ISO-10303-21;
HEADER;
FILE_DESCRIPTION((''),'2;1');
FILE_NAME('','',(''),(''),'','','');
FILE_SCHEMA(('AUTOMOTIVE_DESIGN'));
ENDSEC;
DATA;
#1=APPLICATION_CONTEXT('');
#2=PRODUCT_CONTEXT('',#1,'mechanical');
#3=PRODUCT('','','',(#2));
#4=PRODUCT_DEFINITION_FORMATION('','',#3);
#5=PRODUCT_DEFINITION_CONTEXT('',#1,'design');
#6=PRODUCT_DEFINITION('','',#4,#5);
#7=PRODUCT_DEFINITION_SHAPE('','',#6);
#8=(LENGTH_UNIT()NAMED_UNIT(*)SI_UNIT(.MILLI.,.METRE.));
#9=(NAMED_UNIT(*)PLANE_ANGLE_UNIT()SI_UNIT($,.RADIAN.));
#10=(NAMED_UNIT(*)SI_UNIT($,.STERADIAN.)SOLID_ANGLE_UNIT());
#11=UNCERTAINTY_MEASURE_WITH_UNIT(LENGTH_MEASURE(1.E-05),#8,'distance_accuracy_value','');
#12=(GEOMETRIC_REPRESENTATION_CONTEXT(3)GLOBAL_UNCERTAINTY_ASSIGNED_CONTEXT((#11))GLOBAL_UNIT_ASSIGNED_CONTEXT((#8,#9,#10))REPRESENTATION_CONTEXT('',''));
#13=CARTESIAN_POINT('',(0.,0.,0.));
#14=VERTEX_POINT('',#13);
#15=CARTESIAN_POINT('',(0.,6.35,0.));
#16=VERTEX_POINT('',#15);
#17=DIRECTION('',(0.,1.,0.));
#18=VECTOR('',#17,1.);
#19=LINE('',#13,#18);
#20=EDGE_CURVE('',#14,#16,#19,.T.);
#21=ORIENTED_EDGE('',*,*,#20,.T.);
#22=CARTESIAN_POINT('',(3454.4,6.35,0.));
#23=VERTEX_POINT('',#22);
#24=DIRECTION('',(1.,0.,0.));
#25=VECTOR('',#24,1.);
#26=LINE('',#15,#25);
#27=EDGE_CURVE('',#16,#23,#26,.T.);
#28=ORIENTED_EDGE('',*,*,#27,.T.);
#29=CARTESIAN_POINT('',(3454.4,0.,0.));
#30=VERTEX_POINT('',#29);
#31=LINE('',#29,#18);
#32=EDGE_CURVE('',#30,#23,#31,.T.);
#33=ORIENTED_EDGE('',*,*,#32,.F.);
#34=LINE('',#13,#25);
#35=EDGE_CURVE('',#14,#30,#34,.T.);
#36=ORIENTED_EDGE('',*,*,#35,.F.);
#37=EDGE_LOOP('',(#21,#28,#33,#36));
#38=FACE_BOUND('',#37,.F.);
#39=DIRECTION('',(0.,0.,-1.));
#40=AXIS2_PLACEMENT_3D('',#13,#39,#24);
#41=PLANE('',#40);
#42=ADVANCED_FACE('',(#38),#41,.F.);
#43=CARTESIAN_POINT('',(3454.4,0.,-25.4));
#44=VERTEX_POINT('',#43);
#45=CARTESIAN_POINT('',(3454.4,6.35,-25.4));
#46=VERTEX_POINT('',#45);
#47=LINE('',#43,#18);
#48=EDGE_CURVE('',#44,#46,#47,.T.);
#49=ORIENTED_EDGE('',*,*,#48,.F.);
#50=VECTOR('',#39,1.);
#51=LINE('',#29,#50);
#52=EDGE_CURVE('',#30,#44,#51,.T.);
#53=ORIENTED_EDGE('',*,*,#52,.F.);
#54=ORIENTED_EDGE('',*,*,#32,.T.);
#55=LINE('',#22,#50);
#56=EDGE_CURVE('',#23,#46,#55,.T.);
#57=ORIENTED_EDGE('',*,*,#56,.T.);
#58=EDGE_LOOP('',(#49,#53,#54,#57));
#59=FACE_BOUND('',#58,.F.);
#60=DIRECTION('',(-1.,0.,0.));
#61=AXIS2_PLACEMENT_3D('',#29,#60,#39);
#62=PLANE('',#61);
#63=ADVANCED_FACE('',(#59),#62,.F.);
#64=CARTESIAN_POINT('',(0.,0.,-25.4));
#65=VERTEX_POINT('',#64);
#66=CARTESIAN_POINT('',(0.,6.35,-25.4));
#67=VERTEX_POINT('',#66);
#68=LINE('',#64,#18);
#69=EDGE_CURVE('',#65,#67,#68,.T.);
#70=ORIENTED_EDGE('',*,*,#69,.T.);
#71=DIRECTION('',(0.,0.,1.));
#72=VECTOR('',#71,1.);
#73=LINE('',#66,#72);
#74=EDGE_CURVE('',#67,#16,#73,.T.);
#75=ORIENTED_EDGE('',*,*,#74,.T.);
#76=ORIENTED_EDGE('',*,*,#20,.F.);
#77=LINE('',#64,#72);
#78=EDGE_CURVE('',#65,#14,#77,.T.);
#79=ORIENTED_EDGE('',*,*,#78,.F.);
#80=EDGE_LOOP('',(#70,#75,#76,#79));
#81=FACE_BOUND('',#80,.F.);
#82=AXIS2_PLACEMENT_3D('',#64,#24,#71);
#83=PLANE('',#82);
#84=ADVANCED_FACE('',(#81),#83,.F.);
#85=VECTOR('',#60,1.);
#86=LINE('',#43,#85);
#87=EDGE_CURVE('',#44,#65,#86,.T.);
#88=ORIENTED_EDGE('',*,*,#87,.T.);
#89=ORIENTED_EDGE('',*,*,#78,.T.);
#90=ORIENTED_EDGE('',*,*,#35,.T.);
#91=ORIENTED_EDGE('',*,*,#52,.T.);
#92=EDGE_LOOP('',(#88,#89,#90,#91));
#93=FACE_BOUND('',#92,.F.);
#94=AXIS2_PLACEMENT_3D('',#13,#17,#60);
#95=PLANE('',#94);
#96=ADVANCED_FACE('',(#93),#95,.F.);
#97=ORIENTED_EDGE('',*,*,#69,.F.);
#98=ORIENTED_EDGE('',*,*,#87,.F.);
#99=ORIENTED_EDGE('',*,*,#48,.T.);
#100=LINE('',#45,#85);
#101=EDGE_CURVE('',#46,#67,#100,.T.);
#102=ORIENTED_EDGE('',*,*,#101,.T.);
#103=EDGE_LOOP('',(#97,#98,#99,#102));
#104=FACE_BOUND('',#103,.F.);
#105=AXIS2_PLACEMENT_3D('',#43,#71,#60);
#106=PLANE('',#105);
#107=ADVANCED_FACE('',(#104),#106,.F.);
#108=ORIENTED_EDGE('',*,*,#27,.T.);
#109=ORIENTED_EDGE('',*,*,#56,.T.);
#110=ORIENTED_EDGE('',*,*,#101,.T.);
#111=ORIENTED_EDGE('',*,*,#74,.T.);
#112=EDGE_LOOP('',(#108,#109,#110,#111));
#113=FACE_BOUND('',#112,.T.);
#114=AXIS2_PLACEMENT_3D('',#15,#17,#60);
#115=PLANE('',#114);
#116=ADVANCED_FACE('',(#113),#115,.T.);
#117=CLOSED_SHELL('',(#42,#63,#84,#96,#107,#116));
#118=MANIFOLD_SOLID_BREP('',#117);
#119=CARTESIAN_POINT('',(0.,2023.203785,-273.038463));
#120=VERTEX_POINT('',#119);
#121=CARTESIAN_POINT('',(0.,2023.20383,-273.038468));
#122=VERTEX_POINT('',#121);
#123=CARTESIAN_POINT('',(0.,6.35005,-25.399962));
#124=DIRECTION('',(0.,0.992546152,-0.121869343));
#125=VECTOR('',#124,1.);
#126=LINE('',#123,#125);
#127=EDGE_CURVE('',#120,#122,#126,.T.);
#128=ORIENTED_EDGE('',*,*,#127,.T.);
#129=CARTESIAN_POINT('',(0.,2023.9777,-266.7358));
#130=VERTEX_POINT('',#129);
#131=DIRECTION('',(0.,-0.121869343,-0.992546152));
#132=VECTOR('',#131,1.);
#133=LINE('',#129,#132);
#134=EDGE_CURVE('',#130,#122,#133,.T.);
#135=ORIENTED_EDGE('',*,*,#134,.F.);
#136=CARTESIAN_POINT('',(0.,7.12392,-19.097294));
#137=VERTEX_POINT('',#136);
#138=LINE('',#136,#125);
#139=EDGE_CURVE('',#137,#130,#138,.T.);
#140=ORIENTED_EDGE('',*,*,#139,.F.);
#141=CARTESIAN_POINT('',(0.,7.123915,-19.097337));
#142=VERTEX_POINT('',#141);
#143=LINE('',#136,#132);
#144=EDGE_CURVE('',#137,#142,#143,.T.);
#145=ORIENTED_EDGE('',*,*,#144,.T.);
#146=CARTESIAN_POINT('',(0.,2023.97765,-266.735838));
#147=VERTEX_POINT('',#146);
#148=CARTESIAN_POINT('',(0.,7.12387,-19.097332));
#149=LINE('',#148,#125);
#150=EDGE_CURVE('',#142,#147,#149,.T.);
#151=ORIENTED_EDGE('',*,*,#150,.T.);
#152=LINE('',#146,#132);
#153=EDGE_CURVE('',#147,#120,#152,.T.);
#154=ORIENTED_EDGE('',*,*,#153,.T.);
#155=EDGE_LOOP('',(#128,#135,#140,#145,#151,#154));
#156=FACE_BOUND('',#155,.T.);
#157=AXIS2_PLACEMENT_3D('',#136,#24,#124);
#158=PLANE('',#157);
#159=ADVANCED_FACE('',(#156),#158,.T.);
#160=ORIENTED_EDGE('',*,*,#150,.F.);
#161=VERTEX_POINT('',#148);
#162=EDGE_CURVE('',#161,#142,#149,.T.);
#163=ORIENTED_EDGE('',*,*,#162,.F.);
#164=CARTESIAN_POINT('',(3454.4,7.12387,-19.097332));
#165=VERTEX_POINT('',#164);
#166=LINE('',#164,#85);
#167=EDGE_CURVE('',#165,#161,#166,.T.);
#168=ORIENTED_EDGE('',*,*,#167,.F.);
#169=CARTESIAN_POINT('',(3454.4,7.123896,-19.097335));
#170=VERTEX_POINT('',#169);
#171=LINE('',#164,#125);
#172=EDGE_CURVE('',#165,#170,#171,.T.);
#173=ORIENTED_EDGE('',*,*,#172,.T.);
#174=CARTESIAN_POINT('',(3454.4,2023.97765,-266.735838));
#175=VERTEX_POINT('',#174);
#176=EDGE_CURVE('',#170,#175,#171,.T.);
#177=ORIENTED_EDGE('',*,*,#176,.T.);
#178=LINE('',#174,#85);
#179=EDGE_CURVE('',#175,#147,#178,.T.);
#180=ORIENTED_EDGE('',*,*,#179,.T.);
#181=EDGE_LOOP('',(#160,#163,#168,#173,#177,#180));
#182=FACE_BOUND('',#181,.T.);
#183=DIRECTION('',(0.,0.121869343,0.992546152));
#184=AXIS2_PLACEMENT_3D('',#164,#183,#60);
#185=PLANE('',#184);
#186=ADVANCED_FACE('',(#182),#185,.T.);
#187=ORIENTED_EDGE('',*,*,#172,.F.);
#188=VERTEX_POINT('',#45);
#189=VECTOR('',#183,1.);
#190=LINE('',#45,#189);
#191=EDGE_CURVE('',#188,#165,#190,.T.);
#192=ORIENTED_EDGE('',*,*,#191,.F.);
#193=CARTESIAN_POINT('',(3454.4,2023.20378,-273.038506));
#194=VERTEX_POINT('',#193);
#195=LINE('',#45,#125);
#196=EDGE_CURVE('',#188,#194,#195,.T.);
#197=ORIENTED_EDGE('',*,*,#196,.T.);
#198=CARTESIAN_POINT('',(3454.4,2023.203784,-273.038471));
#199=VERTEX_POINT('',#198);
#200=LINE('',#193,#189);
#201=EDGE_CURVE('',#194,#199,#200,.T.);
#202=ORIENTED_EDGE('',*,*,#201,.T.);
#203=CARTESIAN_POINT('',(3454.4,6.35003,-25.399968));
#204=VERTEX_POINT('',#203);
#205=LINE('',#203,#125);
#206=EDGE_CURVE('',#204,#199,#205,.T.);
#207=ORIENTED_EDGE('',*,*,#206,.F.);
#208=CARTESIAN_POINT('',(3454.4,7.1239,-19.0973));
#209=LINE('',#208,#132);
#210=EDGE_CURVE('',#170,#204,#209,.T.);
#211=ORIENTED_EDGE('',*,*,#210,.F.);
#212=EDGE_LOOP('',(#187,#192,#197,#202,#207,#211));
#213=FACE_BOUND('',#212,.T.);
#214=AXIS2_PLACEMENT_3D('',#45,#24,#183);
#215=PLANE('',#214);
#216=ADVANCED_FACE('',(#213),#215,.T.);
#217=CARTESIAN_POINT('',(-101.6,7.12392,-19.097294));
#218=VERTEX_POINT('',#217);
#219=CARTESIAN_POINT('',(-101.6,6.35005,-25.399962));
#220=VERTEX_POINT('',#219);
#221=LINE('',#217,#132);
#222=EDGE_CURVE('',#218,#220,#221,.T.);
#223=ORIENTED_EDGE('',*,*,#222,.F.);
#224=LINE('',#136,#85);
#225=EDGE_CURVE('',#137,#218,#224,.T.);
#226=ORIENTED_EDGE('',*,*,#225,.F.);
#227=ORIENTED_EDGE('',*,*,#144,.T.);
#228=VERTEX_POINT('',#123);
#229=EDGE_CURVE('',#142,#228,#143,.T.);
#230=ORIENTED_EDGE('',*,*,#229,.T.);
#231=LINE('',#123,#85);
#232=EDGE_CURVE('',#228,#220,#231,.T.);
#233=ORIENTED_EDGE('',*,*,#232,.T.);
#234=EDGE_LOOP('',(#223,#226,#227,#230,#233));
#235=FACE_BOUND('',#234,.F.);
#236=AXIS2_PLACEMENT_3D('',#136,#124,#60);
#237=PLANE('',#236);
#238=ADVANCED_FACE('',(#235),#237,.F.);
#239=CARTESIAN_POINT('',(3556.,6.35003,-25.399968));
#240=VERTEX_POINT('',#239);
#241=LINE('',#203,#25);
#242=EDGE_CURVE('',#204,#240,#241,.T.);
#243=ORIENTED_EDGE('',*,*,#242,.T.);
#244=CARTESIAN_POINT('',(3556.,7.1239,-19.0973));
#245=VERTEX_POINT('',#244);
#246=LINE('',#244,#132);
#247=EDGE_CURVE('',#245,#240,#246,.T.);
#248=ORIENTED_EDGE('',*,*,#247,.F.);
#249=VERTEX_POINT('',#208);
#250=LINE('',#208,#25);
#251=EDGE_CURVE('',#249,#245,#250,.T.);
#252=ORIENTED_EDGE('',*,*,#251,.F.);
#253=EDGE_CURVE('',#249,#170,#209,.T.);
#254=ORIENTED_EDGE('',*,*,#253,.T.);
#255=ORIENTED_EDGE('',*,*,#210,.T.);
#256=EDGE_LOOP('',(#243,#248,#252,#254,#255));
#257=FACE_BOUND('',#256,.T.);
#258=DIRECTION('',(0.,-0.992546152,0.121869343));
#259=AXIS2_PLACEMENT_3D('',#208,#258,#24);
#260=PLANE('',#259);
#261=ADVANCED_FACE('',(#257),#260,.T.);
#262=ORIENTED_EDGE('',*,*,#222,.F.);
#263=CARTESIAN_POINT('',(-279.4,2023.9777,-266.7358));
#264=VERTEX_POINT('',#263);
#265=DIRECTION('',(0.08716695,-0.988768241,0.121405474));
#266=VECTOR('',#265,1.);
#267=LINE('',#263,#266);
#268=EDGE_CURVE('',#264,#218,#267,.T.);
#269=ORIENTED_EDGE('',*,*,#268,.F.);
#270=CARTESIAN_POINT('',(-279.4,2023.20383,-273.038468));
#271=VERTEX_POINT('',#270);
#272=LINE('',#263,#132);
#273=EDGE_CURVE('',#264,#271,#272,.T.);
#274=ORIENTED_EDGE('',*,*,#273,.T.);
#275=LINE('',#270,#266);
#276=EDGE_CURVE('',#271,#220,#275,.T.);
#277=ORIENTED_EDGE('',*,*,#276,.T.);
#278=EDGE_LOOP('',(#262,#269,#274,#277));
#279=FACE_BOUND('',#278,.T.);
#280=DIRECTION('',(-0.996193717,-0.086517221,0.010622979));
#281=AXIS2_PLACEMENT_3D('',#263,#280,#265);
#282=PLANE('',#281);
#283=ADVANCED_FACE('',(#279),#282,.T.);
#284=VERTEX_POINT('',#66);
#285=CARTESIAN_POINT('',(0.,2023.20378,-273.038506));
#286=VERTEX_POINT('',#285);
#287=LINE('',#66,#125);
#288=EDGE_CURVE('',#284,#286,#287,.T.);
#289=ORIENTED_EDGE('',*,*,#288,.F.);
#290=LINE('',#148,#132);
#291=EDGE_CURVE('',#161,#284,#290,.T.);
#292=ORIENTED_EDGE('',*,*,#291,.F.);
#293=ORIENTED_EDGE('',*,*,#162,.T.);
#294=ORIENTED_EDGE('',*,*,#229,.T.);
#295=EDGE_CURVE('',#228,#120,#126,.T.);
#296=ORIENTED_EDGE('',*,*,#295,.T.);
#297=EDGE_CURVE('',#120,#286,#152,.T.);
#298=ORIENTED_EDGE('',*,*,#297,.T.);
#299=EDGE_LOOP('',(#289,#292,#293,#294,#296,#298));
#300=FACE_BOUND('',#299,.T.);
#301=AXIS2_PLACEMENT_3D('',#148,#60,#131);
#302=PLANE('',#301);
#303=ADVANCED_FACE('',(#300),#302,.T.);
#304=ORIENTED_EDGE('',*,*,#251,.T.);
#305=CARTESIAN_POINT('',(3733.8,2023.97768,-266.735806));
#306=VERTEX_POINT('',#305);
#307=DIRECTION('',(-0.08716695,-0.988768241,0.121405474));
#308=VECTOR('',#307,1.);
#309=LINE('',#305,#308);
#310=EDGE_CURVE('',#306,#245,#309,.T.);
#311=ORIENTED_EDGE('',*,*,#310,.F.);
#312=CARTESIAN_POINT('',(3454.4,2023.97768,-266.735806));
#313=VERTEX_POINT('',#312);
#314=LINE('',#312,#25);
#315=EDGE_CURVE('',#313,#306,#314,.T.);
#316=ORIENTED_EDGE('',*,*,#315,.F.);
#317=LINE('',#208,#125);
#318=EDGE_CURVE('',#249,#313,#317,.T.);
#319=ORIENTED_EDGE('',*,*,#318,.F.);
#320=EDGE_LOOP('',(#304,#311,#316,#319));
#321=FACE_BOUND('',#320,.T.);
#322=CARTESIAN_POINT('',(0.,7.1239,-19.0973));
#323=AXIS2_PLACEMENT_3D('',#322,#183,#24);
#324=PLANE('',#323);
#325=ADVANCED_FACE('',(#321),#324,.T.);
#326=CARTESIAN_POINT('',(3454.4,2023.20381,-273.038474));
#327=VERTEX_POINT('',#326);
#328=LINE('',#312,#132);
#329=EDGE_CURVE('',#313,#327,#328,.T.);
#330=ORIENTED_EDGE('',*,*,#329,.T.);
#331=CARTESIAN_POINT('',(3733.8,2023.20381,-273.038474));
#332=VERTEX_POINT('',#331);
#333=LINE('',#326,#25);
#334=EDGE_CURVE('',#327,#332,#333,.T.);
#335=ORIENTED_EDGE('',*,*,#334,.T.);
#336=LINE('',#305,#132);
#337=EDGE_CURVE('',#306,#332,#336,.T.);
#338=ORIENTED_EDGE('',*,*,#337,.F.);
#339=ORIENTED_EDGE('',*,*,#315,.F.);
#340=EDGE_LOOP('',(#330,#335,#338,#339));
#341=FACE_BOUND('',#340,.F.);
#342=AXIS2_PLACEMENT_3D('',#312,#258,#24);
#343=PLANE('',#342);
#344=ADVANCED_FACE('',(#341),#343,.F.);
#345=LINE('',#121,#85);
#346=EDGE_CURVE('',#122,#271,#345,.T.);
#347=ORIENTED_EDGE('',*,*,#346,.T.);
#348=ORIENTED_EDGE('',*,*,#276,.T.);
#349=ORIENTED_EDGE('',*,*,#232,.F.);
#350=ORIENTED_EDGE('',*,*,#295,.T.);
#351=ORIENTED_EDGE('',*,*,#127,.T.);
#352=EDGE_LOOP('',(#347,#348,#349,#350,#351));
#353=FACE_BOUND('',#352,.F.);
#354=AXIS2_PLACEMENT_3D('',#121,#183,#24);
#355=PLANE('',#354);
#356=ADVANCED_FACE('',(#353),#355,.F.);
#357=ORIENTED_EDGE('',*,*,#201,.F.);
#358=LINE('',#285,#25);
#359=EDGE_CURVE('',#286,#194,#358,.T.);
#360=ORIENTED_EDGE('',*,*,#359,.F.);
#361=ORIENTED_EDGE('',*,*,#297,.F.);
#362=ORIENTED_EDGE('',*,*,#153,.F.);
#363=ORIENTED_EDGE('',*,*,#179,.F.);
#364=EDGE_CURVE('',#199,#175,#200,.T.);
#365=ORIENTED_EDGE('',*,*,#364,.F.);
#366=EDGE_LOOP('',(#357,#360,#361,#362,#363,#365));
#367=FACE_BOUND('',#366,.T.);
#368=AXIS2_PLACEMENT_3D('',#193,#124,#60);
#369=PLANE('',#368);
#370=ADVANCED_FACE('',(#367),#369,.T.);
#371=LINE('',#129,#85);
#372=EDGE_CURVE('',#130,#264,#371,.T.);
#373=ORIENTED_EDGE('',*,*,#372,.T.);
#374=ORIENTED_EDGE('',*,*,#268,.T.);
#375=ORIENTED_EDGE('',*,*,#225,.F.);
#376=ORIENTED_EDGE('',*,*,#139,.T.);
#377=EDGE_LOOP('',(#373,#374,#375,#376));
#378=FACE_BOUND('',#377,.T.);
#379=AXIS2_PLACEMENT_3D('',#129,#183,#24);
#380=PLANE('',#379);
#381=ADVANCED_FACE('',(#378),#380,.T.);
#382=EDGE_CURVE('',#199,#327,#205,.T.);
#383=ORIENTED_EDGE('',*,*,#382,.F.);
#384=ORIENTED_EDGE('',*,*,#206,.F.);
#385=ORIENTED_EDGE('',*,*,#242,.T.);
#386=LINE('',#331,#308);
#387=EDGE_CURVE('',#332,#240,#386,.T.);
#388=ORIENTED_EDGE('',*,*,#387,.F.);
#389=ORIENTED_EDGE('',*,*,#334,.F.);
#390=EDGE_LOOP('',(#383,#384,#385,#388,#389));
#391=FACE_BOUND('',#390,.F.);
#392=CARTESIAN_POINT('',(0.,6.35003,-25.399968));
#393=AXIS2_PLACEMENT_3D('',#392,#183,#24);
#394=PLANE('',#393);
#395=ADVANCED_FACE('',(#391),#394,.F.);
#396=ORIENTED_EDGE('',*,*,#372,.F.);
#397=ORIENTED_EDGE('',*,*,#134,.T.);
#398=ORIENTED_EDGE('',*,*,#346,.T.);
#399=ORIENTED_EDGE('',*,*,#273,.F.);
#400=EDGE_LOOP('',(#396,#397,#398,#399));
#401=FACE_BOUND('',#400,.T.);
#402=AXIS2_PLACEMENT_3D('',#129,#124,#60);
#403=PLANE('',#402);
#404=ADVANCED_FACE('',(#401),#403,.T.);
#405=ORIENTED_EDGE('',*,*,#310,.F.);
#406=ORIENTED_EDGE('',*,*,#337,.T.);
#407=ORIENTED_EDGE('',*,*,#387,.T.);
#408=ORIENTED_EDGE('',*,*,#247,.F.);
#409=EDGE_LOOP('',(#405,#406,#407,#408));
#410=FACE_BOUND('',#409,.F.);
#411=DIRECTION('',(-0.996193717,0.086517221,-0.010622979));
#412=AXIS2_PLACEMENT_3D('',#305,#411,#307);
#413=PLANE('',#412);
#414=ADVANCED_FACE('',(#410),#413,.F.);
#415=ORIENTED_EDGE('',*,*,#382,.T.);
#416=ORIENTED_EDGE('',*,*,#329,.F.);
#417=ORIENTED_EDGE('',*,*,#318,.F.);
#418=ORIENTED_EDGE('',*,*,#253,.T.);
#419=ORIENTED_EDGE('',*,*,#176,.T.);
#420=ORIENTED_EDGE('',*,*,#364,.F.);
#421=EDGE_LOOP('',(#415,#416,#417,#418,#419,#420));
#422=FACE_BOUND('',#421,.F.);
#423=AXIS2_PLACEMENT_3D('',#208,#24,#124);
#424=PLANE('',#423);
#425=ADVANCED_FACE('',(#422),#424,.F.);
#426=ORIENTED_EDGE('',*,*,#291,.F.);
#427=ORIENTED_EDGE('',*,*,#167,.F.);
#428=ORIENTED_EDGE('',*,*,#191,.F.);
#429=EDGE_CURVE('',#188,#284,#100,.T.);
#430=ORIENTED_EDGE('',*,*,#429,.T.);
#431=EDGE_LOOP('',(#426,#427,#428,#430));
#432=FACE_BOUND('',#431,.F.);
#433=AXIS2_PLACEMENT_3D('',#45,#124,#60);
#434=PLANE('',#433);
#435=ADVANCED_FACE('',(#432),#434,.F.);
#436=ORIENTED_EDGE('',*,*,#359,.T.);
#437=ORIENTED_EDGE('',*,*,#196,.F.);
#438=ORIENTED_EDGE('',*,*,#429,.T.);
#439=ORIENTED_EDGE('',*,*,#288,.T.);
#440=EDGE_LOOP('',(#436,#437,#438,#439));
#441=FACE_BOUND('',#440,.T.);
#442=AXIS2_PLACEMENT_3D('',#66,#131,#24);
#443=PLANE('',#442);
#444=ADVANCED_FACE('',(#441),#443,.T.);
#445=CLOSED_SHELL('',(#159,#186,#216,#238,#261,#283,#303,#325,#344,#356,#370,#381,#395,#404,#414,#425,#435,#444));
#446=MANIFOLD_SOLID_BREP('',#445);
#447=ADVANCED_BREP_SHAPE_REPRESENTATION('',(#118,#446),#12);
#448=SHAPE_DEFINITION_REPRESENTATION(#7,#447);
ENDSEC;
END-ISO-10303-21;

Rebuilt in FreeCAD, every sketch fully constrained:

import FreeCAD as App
import Part
import Sketcher
from FreeCAD import Vector
Q = App.Units.Quantity


def add_polygon(sketch, points):
    """Adds a closed chain of lines whose ends are joined by coincident constraints."""
    first, n = sketch.GeometryCount, len(points)
    for a, b in zip(points, points[1:] + points[:1]):
        sketch.addGeometry(Part.LineSegment(App.Vector(*a, 0), App.Vector(*b, 0)), False)
    for i in range(n):
        sketch.addConstraint(Sketcher.Constraint("Coincident", first + i, 2, first + (i + 1) % n, 1))

doc = App.newDocument("Part")
params = doc.addObject("Spreadsheet::Sheet", "Params")
for row, (alias, value) in enumerate([
    ("sketch1_width", "136 in"),
    ("sketch1_height", "1 in"),
    ("pad1_length", "0.25 in"),
    ("sketch2_width", "136 in"),
    ("sketch2_height", "0.25 in"),
    ("pad2_length", "80 in"),
    ("sketch3_width", "4 in"),
    ("sketch3_width2", "11 in"),
    ("sketch3_height", "80 in"),
    ("pad3_length", "0.25 in"),
    ("sketch4_width", "4 in"),
    ("sketch4_width2", "11 in"),
    ("sketch4_height", "80 in"),
    ("pad4_length", "0.25 in"),
], start=1):
    params.set(f"A{row}", alias)
    params.set(f"B{row}", "=" + value)
    params.setAlias(f"B{row}", alias)

body = doc.addObject("PartDesign::Body", "Body")
body.AllowCompound = True

# Sketch on XZ plane
sketch1 = body.newObject("Sketcher::SketchObject", "Sketch")
sketch1.AttachmentSupport = (doc.getObject("XZ_Plane"), [""])
sketch1.MapMode = "FlatFace"
add_polygon(sketch1, [(0, -25), (0, 0), (3454, 0), (3454, -25)])  # lines 0-3
sketch1.addConstraint([
    Sketcher.Constraint("Vertical", 0),
    Sketcher.Constraint("Horizontal", 1),
    Sketcher.Constraint("Vertical", 2),
    Sketcher.Constraint("Horizontal", 3),
    Sketcher.Constraint("Coincident", 0, 2, -1, 1),
    Sketcher.Constraint("DistanceX", 1, 1, 1, 2, Q("136 in")),
    Sketcher.Constraint("DistanceY", 0, 1, 0, 2, Q("1 in")),
])
sketch1.setExpression("Constraints[9]", "Params.sketch1_width")
sketch1.setExpression("Constraints[10]", "Params.sketch1_height")
pad1 = body.newObject("PartDesign::Pad", "Pad")
pad1.Profile = sketch1
pad1.setExpression("Length", "Params.pad1_length")
pad1.Reversed = True

# Sketch on an angled plane
sketch2 = body.newObject("Sketcher::SketchObject", "Sketch001")
sketch2.Placement = App.Placement(Vector(3454.4, 6.35, -25.4), App.Rotation(Vector(-1, 0, 0), Vector(0, 0.121869343, 0.992546152), Vector(0, 0.992546152, -0.121869343), "ZXY"))
add_polygon(sketch2, [(3454, 6), (0, 6), (0, 0), (3454, 0)])  # lines 0-3
sketch2.addConstraint([
    Sketcher.Constraint("Horizontal", 0),
    Sketcher.Constraint("Vertical", 1),
    Sketcher.Constraint("Horizontal", 2),
    Sketcher.Constraint("Vertical", 3),
    Sketcher.Constraint("Coincident", 1, 2, -1, 1),
    Sketcher.Constraint("DistanceX", 0, 2, 0, 1, Q("136 in")),
    Sketcher.Constraint("DistanceY", 1, 2, 1, 1, Q("0.25 in")),
])
sketch2.setExpression("Constraints[9]", "Params.sketch2_width")
sketch2.setExpression("Constraints[10]", "Params.sketch2_height")
pad2 = body.newObject("PartDesign::Pad", "Pad001")
pad2.Profile = sketch2
pad2.setExpression("Length", "Params.pad2_length")

# Sketch on an angled plane
sketch3 = body.newObject("Sketcher::SketchObject", "Sketch002")
sketch3.Placement = App.Placement(Vector(0, 7.1239, -19.0973), App.Rotation(Vector(1, 0, 0), Vector(0, 0.992546152, -0.121869343), Vector(0, 0.121869343, 0.992546152), "ZXY"))
add_polygon(sketch3, [(3454, 2032), (3454, 0), (3556, 0), (3734, 2032)])  # lines 0-3
sketch3.addConstraint([
    Sketcher.Constraint("Vertical", 0),
    Sketcher.Constraint("Horizontal", 1),
    Sketcher.Constraint("Horizontal", 3),
    Sketcher.Constraint("PointOnObject", 0, 2, -1),
    Sketcher.Constraint("DistanceX", 1, 1, 1, 2, Q("4 in")),
    Sketcher.Constraint("DistanceX", 3, 2, 3, 1, Q("11 in")),
    Sketcher.Constraint("DistanceY", 0, 2, 0, 1, Q("80 in")),
    Sketcher.Constraint("DistanceX", -1, 1, 0, 2, Q("136 in")),
])
sketch3.setExpression("Constraints[8]", "Params.sketch3_width")
sketch3.setExpression("Constraints[9]", "Params.sketch3_width2")
sketch3.setExpression("Constraints[10]", "Params.sketch3_height")
pad3 = body.newObject("PartDesign::Pad", "Pad002")
pad3.Profile = sketch3
pad3.setExpression("Length", "Params.pad3_length")
pad3.Reversed = True

# Sketch on an angled plane
sketch4 = body.newObject("Sketcher::SketchObject", "Sketch003")
sketch4.Placement = App.Placement(Vector(0, 2023.9777, -266.7358), App.Rotation(Vector(1, 0, 0), Vector(0, 0.992546152, -0.121869343), Vector(0, 0.121869343, 0.992546152), "ZXY"))
add_polygon(sketch4, [(-102, -2032), (0, -2032), (0, 0), (-279, 0)])  # lines 0-3
sketch4.addConstraint([
    Sketcher.Constraint("Horizontal", 0),
    Sketcher.Constraint("Vertical", 1),
    Sketcher.Constraint("Horizontal", 2),
    Sketcher.Constraint("Coincident", 1, 2, -1, 1),
    Sketcher.Constraint("DistanceX", 0, 1, 0, 2, Q("4 in")),
    Sketcher.Constraint("DistanceX", 2, 2, 2, 1, Q("11 in")),
    Sketcher.Constraint("DistanceY", 1, 1, 1, 2, Q("80 in")),
])
sketch4.setExpression("Constraints[8]", "Params.sketch4_width")
sketch4.setExpression("Constraints[9]", "Params.sketch4_width2")
sketch4.setExpression("Constraints[10]", "Params.sketch4_height")
pad4 = body.newObject("PartDesign::Pad", "Pad003")
pad4.Profile = sketch4
pad4.setExpression("Length", "Params.pad4_length")
pad4.Reversed = True

doc.recompute()
